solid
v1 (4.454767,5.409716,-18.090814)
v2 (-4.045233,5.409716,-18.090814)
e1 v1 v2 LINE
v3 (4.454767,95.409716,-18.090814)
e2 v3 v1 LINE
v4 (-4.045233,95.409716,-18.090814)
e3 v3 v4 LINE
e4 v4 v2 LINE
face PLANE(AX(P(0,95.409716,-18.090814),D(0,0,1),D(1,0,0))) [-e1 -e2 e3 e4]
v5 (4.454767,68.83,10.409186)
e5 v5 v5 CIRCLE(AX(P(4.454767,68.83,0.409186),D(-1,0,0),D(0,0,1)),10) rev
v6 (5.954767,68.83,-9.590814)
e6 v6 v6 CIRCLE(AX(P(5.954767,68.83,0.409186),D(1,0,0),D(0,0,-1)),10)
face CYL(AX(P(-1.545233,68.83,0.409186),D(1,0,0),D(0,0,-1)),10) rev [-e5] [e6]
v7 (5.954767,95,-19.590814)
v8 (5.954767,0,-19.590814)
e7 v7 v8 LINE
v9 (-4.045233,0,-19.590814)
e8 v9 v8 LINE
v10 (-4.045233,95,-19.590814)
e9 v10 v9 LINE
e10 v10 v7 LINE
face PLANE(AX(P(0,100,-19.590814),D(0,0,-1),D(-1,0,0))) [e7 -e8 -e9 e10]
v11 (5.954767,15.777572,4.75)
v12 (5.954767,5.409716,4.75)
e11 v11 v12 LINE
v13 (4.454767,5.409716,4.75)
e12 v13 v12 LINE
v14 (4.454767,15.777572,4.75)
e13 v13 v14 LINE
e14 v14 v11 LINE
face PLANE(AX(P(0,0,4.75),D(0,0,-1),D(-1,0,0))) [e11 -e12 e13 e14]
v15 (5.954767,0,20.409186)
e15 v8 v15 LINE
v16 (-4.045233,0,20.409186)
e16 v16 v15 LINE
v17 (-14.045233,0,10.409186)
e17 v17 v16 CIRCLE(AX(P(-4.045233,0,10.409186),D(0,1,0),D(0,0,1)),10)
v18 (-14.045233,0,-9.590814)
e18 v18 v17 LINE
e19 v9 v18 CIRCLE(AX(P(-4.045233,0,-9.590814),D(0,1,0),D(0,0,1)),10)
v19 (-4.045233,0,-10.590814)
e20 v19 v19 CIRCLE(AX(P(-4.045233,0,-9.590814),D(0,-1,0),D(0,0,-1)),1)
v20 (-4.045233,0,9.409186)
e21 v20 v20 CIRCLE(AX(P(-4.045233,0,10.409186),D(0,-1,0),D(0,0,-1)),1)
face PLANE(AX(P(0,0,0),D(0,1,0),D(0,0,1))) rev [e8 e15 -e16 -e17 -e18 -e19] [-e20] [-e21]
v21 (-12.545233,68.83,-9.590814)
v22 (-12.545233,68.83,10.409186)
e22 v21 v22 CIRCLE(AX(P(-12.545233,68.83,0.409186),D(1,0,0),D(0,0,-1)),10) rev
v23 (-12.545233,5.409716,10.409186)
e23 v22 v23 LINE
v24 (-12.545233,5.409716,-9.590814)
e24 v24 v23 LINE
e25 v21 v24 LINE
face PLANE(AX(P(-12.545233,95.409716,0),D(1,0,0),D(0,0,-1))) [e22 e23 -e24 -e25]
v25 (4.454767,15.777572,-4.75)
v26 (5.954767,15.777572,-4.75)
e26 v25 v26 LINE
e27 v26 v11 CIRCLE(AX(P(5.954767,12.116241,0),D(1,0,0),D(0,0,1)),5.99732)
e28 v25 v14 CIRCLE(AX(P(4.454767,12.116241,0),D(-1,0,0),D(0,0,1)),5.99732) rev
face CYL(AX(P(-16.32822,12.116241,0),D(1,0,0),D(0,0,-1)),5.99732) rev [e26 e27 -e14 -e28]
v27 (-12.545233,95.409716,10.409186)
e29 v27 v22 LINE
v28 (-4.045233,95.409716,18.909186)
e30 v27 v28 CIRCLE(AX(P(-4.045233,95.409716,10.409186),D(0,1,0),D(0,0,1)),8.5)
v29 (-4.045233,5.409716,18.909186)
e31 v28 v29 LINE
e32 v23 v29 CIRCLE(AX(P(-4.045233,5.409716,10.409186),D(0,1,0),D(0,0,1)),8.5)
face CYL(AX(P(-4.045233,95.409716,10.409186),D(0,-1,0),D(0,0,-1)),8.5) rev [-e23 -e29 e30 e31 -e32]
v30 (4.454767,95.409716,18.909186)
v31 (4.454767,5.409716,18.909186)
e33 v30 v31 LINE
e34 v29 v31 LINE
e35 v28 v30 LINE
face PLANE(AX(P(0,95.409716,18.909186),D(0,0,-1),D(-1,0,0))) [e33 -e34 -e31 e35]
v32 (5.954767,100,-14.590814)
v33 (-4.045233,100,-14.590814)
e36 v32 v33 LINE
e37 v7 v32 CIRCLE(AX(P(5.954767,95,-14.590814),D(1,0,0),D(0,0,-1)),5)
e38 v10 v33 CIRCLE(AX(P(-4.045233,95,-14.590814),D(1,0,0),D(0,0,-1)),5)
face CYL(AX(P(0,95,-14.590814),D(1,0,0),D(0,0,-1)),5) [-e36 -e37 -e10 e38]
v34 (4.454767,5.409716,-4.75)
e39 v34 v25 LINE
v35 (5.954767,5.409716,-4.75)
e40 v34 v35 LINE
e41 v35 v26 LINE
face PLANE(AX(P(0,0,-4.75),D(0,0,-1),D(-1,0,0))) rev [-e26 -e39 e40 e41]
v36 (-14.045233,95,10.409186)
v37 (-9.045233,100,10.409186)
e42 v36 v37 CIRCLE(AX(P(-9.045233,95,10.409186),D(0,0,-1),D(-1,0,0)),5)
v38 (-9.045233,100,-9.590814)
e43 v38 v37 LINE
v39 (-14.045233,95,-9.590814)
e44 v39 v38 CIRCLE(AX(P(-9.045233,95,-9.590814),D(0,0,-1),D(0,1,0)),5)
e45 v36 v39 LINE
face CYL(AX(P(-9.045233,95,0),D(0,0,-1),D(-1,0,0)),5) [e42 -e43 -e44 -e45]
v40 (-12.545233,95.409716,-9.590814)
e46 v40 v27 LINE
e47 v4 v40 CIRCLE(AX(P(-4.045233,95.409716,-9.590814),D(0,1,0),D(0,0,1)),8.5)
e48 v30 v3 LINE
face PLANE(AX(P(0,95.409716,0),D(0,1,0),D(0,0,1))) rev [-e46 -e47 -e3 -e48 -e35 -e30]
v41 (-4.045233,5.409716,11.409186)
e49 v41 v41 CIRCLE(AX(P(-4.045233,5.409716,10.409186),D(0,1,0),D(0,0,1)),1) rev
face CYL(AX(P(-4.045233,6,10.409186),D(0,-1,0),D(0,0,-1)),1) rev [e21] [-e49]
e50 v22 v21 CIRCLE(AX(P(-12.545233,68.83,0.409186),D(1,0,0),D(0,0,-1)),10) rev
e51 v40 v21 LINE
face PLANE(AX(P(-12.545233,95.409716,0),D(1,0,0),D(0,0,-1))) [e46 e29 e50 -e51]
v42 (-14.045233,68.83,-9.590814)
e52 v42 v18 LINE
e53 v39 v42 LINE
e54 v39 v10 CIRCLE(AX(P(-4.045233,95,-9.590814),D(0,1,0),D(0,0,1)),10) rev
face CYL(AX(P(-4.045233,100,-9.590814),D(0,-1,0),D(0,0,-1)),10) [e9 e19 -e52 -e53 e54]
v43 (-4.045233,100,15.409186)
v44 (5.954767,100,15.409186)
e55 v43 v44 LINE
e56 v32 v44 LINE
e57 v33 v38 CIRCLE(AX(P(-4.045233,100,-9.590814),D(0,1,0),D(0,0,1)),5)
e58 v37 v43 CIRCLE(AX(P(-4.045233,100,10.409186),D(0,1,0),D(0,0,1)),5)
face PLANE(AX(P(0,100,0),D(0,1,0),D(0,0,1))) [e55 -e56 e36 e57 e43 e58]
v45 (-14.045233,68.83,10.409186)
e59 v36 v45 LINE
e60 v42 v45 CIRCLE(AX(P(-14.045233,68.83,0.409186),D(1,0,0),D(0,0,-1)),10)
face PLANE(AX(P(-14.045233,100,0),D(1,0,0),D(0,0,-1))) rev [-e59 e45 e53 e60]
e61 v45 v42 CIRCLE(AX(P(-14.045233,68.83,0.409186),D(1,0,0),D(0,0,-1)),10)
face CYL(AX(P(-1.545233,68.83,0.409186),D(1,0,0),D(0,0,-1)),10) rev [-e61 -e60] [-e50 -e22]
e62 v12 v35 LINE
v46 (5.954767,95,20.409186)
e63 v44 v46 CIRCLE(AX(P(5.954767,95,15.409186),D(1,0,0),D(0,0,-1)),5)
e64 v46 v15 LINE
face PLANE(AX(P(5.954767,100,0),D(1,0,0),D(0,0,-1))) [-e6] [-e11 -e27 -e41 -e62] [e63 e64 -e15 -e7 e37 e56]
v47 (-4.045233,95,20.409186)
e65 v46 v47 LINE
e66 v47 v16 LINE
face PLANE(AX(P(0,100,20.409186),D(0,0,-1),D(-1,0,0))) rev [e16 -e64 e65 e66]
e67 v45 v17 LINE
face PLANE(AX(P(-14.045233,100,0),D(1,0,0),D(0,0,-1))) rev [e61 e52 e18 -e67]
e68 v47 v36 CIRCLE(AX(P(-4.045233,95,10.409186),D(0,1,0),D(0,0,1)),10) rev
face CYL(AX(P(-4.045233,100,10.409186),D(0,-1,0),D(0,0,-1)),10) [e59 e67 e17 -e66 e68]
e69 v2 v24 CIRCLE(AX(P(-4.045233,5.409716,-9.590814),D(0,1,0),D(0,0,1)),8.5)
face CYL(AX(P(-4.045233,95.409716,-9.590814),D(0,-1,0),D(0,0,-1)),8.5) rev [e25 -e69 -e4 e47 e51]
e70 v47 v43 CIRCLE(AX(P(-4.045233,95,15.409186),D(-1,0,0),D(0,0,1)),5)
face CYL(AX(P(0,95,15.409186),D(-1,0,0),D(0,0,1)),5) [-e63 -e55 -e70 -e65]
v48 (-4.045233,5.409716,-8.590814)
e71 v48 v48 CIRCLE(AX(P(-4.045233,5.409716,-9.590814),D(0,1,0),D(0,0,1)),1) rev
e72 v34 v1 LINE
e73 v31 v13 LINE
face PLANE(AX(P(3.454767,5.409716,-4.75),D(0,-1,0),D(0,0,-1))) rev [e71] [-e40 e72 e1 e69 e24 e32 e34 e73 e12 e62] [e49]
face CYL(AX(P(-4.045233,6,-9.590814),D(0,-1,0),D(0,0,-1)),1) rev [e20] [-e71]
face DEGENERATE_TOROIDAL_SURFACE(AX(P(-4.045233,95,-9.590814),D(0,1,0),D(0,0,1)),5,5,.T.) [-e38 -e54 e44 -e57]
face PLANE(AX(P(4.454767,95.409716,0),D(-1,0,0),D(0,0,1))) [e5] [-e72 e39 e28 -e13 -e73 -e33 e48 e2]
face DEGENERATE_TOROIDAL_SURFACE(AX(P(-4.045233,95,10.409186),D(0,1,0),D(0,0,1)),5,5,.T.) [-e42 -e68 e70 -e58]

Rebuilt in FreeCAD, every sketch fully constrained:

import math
import FreeCAD as App
import Part
import Sketcher


def edges_at(feature, points):
    """Names of the edges that pass closest to the given points."""
    edges = feature.Shape.Edges
    near = lambda p: min(range(len(edges)), key=lambda i: edges[i].distToShape(Part.Vertex(*p))[0])
    return sorted({f"Edge{near(p) + 1}" for p in points})


def add_polygon(sketch, points):
    """Adds a closed chain of lines whose ends are joined by coincident constraints."""
    first, n = sketch.GeometryCount, len(points)
    for a, b in zip(points, points[1:] + points[:1]):
        sketch.addGeometry(Part.LineSegment(App.Vector(*a, 0), App.Vector(*b, 0)), False)
    for i in range(n):
        sketch.addConstraint(Sketcher.Constraint("Coincident", first + i, 2, first + (i + 1) % n, 1))

doc = App.newDocument("Part")
body = doc.addObject("PartDesign::Body", "Body")

# Sketch on XZ plane
sketch1 = body.newObject("Sketcher::SketchObject", "Sketch")
sketch1.AttachmentSupport = (doc.getObject("XZ_Plane"), [""])
sketch1.MapMode = "FlatFace"
sketch1.addGeometry([
    Part.LineSegment(App.Vector(5.954767, -19.590814, 0), App.Vector(-4.045233, -19.590814, 0)),  # 0
    Part.ArcOfCircle(Part.Circle(App.Vector(-4.045233, -9.590814, 0), App.Vector(0, 0, 1), 10), math.radians(180), math.radians(270)),  # 1
    Part.LineSegment(App.Vector(-14.045233, -9.590814, 0), App.Vector(-14.045233, 10.409186, 0)),  # 2
    Part.ArcOfCircle(Part.Circle(App.Vector(-4.045233, 10.409186, 0), App.Vector(0, 0, 1), 10), math.radians(90), math.radians(180)),  # 3
    Part.LineSegment(App.Vector(-4.045233, 20.409186, 0), App.Vector(5.954767, 20.409186, 0)),  # 4
    Part.LineSegment(App.Vector(5.954767, 20.409186, 0), App.Vector(5.954767, -19.590814, 0)),  # 5
], False)
sketch1.addConstraint([
    Sketcher.Constraint("Tangent", 0, 2, 1, 2),
    Sketcher.Constraint("Tangent", 1, 1, 2, 1),
    Sketcher.Constraint("Tangent", 2, 2, 3, 2),
    Sketcher.Constraint("Tangent", 3, 1, 4, 1),
    Sketcher.Constraint("Coincident", 4, 2, 5, 1),
    Sketcher.Constraint("Coincident", 5, 2, 0, 1),
    Sketcher.Constraint("Horizontal", 0),
    Sketcher.Constraint("Vertical", 2),
    Sketcher.Constraint("Horizontal", 4),
    Sketcher.Constraint("Vertical", 5),
    Sketcher.Constraint("Equal", 1, 3),
    Sketcher.Constraint("Radius", 1, 10.0),
    Sketcher.Constraint("DistanceX", 0, 2, 0, 1, 10.0),
    Sketcher.Constraint("DistanceY", 2, 1, 2, 2, 20.0),
    Sketcher.Constraint("DistanceX", 1, 3, -1, 1, 4.045233),
    Sketcher.Constraint("DistanceY", 1, 3, -1, 1, 9.590814),
])
pad1 = body.newObject("PartDesign::Pad", "Pad")
pad1.Profile = sketch1
pad1.Length = 100
pad1.Reversed = True

# Sketch on YZ plane
sketch2 = body.newObject("Sketcher::SketchObject", "Sketch001")
sketch2.AttachmentSupport = (doc.getObject("YZ_Plane"), [""])
sketch2.MapMode = "FlatFace"
sketch2.AttachmentOffset = App.Placement(App.Vector(0, 0, 5.954767), App.Rotation())
sketch2.addGeometry(Part.Circle(App.Vector(68.83, 0.409186, 0), App.Vector(0, 0, 1), 10), False)
sketch2.addConstraint([
    Sketcher.Constraint("Diameter", 0, 20.0),
    Sketcher.Constraint("DistanceX", -1, 1, 0, 3, 68.83),
    Sketcher.Constraint("DistanceY", -1, 1, 0, 3, 0.409186),
])
pocket1 = body.newObject("PartDesign::Pocket", "Pocket")
pocket1.Profile = sketch2
pocket1.Length = 7.5

# Sketch on XY plane
sketch3 = body.newObject("Sketcher::SketchObject", "Sketch002")
sketch3.AttachmentSupport = (doc.getObject("XY_Plane"), [""])
sketch3.MapMode = "FlatFace"
add_polygon(sketch3, [(3.454767, 89.777572), (-1.545233, 89.777572), (-1.545233, 12.777572), (-15.452876, 12.777572), (-15.452876, 5.409716), (3.454767, 5.409716)])  # lines 0-5
sketch3.addConstraint([
    Sketcher.Constraint("Horizontal", 0),
    Sketcher.Constraint("Vertical", 1),
    Sketcher.Constraint("Horizontal", 2),
    Sketcher.Constraint("Vertical", 3),
    Sketcher.Constraint("Horizontal", 4),
    Sketcher.Constraint("Vertical", 5),
    Sketcher.Constraint("DistanceX", 0, 2, 0, 1, 5.0),
    Sketcher.Constraint("DistanceY", 1, 2, 1, 1, 77.0),
    Sketcher.Constraint("DistanceX", 2, 2, 2, 1, 13.907644),
    Sketcher.Constraint("DistanceY", 3, 2, 3, 1, 7.367856),
    Sketcher.Constraint("DistanceX", 0, 2, -1, 1, 1.545233),
    Sketcher.Constraint("DistanceY", -1, 1, 0, 2, 89.777572),
])
pocket2 = body.newObject("PartDesign::Pocket", "Pocket001")
pocket2.Profile = sketch3
pocket2.Length = 9.5
pocket2.Midplane = True

# Sketch on XZ plane
sketch4 = body.newObject("Sketcher::SketchObject", "Sketch003")
sketch4.AttachmentSupport = (doc.getObject("XZ_Plane"), [""])
sketch4.MapMode = "FlatFace"
sketch4.addGeometry([
    Part.Circle(App.Vector(-4.045233, -9.590814, 0), App.Vector(0, 0, 1), 1),
    Part.Circle(App.Vector(-4.045233, 10.409186, 0), App.Vector(0, 0, 1), 1),
], False)
sketch4.addConstraint([
    Sketcher.Constraint("Equal", 0, 1),
    Sketcher.Constraint("Vertical", 0, 3, 1, 3),
    Sketcher.Constraint("Diameter", 0, 2.0),
    Sketcher.Constraint("DistanceY", 0, 3, 1, 3, 20.0),
    Sketcher.Constraint("DistanceX", 0, 3, -1, 1, 4.045233),
    Sketcher.Constraint("DistanceY", 0, 3, -1, 1, 9.590814),
])
pocket3 = body.newObject("PartDesign::Pocket", "Pocket002")
pocket3.Profile = sketch4
pocket3.Length = 6

# Sketch on YZ plane
sketch5 = body.newObject("Sketcher::SketchObject", "Sketch004")
sketch5.AttachmentSupport = (doc.getObject("YZ_Plane"), [""])
sketch5.MapMode = "FlatFace"
sketch5.AttachmentOffset = App.Placement(App.Vector(0, 0, 3.454767), App.Rotation())
add_polygon(sketch5, [(12.777572, -4.75), (5.409716, -4.75), (5.409716, 4.75), (12.777572, 4.75)])  # lines 0-3
sketch5.addConstraint([
    Sketcher.Constraint("Horizontal", 0),
    Sketcher.Constraint("Vertical", 1),
    Sketcher.Constraint("Horizontal", 2),
    Sketcher.Constraint("Vertical", 3),
    Sketcher.Constraint("DistanceY", 1, 1, 1, 2, 9.5),
    Sketcher.Constraint("DistanceY", 0, 2, -1, 1, 4.75),
    Sketcher.Constraint("DistanceX", 0, 2, 0, 1, 7.367856),
    Sketcher.Constraint("DistanceX", -1, 1, 0, 2, 5.409716),
])
pocket4 = body.newObject("PartDesign::Pocket", "Pocket003")
pocket4.Profile = sketch5
pocket4.Length = 6
pocket4.Reversed = True

# Sketch on YZ plane
sketch6 = body.newObject("Sketcher::SketchObject", "Sketch005")
sketch6.AttachmentSupport = (doc.getObject("YZ_Plane"), [""])
sketch6.MapMode = "FlatFace"
sketch6.AttachmentOffset = App.Placement(App.Vector(0, 0, -14.045233), App.Rotation())
add_polygon(sketch6, [(12.777572, -4.75), (5.409716, -4.75), (5.409716, 4.75), (12.777572, 4.75)])  # lines 0-3
sketch6.addConstraint([
    Sketcher.Constraint("Horizontal", 0),
    Sketcher.Constraint("Vertical", 1),
    Sketcher.Constraint("Horizontal", 2),
    Sketcher.Constraint("Vertical", 3),
    Sketcher.Constraint("DistanceY", 1, 1, 1, 2, 9.5),
    Sketcher.Constraint("DistanceY", 0, 2, -1, 1, 4.75),
    Sketcher.Constraint("DistanceX", 0, 2, 0, 1, 7.367856),
    Sketcher.Constraint("DistanceX", -1, 1, 0, 2, 5.409716),
])
pad2 = body.newObject("PartDesign::Pad", "Pad001")
pad2.Profile = sketch6
pad2.Length = 12.5

# Sketch on YZ plane
sketch7 = body.newObject("Sketcher::SketchObject", "Sketch006")
sketch7.AttachmentSupport = (doc.getObject("YZ_Plane"), [""])
sketch7.MapMode = "FlatFace"
sketch7.AttachmentOffset = App.Placement(App.Vector(0, 0, 5.954767), App.Rotation())
sketch7.addGeometry(Part.Circle(App.Vector(68.83, 0.409186, 0), App.Vector(0, 0, 1), 10), False)
sketch7.addConstraint([
    Sketcher.Constraint("Diameter", 0, 20.0),
    Sketcher.Constraint("DistanceX", -1, 1, 0, 3, 68.83),
    Sketcher.Constraint("DistanceY", -1, 1, 0, 3, 0.409186),
])
pocket5 = body.newObject("PartDesign::Pocket", "Pocket004")
pocket5.Profile = sketch7
pocket5.Length = 68
doc.recompute()

fillet = body.newObject("PartDesign::Fillet", "Fillet")
fillet.Base = (pocket5, edges_at(pocket5, [
    (-11.116, 100, -16.662),
    (-14.045, 100, 0.409),
    (-11.116, 100, 17.48),
    (0.955, 100, 20.409),
    (0.955, 100, -19.591),
]))
fillet.Radius = 5

# Sketch on YZ plane
sketch8 = body.newObject("Sketcher::SketchObject", "Sketch007")
sketch8.AttachmentSupport = (doc.getObject("YZ_Plane"), [""])
sketch8.MapMode = "FlatFace"
sketch8.AttachmentOffset = App.Placement(App.Vector(0, 0, -1.545233), App.Rotation())
sketch8.addGeometry([
    Part.LineSegment(App.Vector(59.821263, 4.75, 0), App.Vector(5.409716, 4.75, 0)),
    Part.LineSegment(App.Vector(5.409716, 4.75, 0), App.Vector(5.409716, -4.75, 0)),
    Part.LineSegment(App.Vector(5.409716, -4.75, 0), App.Vector(60.263624, -4.75, 0)),
    Part.ArcOfCircle(Part.Circle(App.Vector(68.83, 0.409186, 0), App.Vector(0, 0, 1), 10), math.radians(154.273144), math.radians(211.058875)),
], False)
sketch8.addConstraint([
    Sketcher.Constraint("Coincident", 0, 2, 1, 1),
    Sketcher.Constraint("Coincident", 1, 2, 2, 1),
    Sketcher.Constraint("Coincident", 2, 2, 3, 2),
    Sketcher.Constraint("Coincident", 3, 1, 0, 1),
    Sketcher.Constraint("Horizontal", 0),
    Sketcher.Constraint("Vertical", 1),
    Sketcher.Constraint("Horizontal", 2),
    Sketcher.Constraint("Radius", 3, 10.0),
    Sketcher.Constraint("DistanceY", 1, 2, 1, 1, 9.5),
    Sketcher.Constraint("DistanceX", -1, 1, 3, 3, 68.83),
    Sketcher.Constraint("DistanceY", -1, 1, 0, 2, 4.75),
    Sketcher.Constraint("DistanceX", 2, 1, 2, 2, 54.853908),
    Sketcher.Constraint("DistanceX", 0, 2, 0, 1, 54.411548),
])
pocket6 = body.newObject("PartDesign::Pocket", "Pocket005")
pocket6.Profile = sketch8
pocket6.Length = 5

# Sketch on YZ plane
sketch9 = body.newObject("Sketcher::SketchObject", "Sketch008")
sketch9.AttachmentSupport = (doc.getObject("YZ_Plane"), [""])
sketch9.MapMode = "FlatFace"
sketch9.AttachmentOffset = App.Placement(App.Vector(0, 0, 5.954767), App.Rotation())
add_polygon(sketch9, [(15.777572, 4.75), (12.777572, 4.75), (12.777572, -4.75), (15.777572, -4.75)])  # lines 0-3
sketch9.addConstraint([
    Sketcher.Constraint("Horizontal", 0),
    Sketcher.Constraint("Vertical", 1),
    Sketcher.Constraint("Horizontal", 2),
    Sketcher.Constraint("Vertical", 3),
    Sketcher.Constraint("DistanceX", 0, 2, 0, 1, 3.0),
    Sketcher.Constraint("DistanceY", 1, 2, 1, 1, 9.5),
    Sketcher.Constraint("DistanceY", -1, 1, 0, 2, 4.75),
    Sketcher.Constraint("DistanceX", -1, 1, 0, 2, 12.777572),
])
pocket7 = body.newObject("PartDesign::Pocket", "Pocket006")
pocket7.Profile = sketch9
pocket7.Length = 5

# Sketch on YZ plane
sketch10 = body.newObject("Sketcher::SketchObject", "Sketch009")
sketch10.AttachmentSupport = (doc.getObject("YZ_Plane"), [""])
sketch10.MapMode = "FlatFace"
sketch10.AttachmentOffset = App.Placement(App.Vector(0, 0, 5.954767), App.Rotation())
sketch10.addGeometry([
    Part.LineSegment(App.Vector(15.777572, 4.75, 0), App.Vector(15.777572, -4.75, 0)),
    Part.ArcOfCircle(Part.Circle(App.Vector(12.116241, 0, 0), App.Vector(0, 0, 1), 5.99732), math.radians(-52.374732), math.radians(52.374732)),
], False)
sketch10.addConstraint([
    Sketcher.Constraint("Coincident", 0, 1, 1, 2),
    Sketcher.Constraint("Coincident", 1, 1, 0, 2),
    Sketcher.Constraint("Vertical", 0),
    Sketcher.Constraint("PointOnObject", 1, 3, -1),
    Sketcher.Constraint("DistanceY", 0, 2, 0, 1, 9.5),
    Sketcher.Constraint("Radius", 1, 5.99732),
    Sketcher.Constraint("DistanceX", -1, 1, 1, 3, 12.116241),
])
pocket8 = body.newObject("PartDesign::Pocket", "Pocket007")
pocket8.Profile = sketch10
pocket8.Length = 12.5

# Sketch on YZ plane
sketch11 = body.newObject("Sketcher::SketchObject", "Sketch010")
sketch11.AttachmentSupport = (doc.getObject("YZ_Plane"), [""])
sketch11.MapMode = "FlatFace"
sketch11.AttachmentOffset = App.Placement(App.Vector(0, 0, -1.545233), App.Rotation())
sketch11.addGeometry([
    Part.ArcOfCircle(Part.Circle(App.Vector(87.974411, 0, 0), App.Vector(0, 0, 1), 5.080737), math.radians(-69.212596), math.radians(69.212596)),
    Part.LineSegment(App.Vector(89.777572, 4.75, 0), App.Vector(89.777572, -4.75, 0)),
], False)
sketch11.addConstraint([
    Sketcher.Constraint("Coincident", 0, 1, 1, 2),
    Sketcher.Constraint("Coincident", 1, 1, 0, 2),
    Sketcher.Constraint("Vertical", 1),
    Sketcher.Constraint("PointOnObject", 0, 3, -1),
    Sketcher.Constraint("DistanceY", 1, 2, 1, 1, 9.5),
    Sketcher.Constraint("Radius", 0, 5.080737),
    Sketcher.Constraint("DistanceX", -1, 1, 0, 3, 87.974411),
])
pocket9 = body.newObject("PartDesign::Pocket", "Pocket008")
pocket9.Profile = sketch11
pocket9.Length = 5
pocket9.Reversed = True

# Sketch on XZ plane
sketch12 = body.newObject("Sketcher::SketchObject", "Sketch011")
sketch12.AttachmentSupport = (doc.getObject("XZ_Plane"), [""])
sketch12.MapMode = "FlatFace"
sketch12.AttachmentOffset = App.Placement(App.Vector(0, 0, -5.409716), App.Rotation())
sketch12.addGeometry([
    Part.LineSegment(App.Vector(4.454767, -18.090814, 0), App.Vector(-4.045233, -18.090814, 0)),  # 0
    Part.ArcOfCircle(Part.Circle(App.Vector(-4.045233, -9.590814, 0), App.Vector(0, 0, 1), 8.5), math.radians(180), math.radians(270)),  # 1
    Part.LineSegment(App.Vector(-12.545233, -9.590814, 0), App.Vector(-12.545233, 10.409186, 0)),  # 2
    Part.ArcOfCircle(Part.Circle(App.Vector(-4.045233, 10.409186, 0), App.Vector(0, 0, 1), 8.5), math.radians(90), math.radians(180)),  # 3
    Part.LineSegment(App.Vector(-4.045233, 18.909186, 0), App.Vector(4.454767, 18.909186, 0)),  # 4
    Part.LineSegment(App.Vector(4.454767, 18.909186, 0), App.Vector(4.454767, -18.090814, 0)),  # 5
], False)
sketch12.addConstraint([
    Sketcher.Constraint("Tangent", 0, 2, 1, 2),
    Sketcher.Constraint("Tangent", 1, 1, 2, 1),
    Sketcher.Constraint("Tangent", 2, 2, 3, 2),
    Sketcher.Constraint("Tangent", 3, 1, 4, 1),
    Sketcher.Constraint("Coincident", 4, 2, 5, 1),
    Sketcher.Constraint("Coincident", 5, 2, 0, 1),
    Sketcher.Constraint("Horizontal", 0),
    Sketcher.Constraint("Vertical", 2),
    Sketcher.Constraint("Horizontal", 4),
    Sketcher.Constraint("Vertical", 5),
    Sketcher.Constraint("Equal", 1, 3),
    Sketcher.Constraint("Radius", 1, 8.5),
    Sketcher.Constraint("DistanceY", 2, 1, 2, 2, 20.0),
    Sketcher.Constraint("DistanceX", 0, 2, 0, 1, 8.5),
    Sketcher.Constraint("DistanceX", 1, 3, -1, 1, 4.045233),
    Sketcher.Constraint("DistanceY", 1, 3, -1, 1, 9.590814),
])
pocket10 = body.newObject("PartDesign::Pocket", "Pocket009")
pocket10.Profile = sketch12
pocket10.Length = 90

doc.recompute()
